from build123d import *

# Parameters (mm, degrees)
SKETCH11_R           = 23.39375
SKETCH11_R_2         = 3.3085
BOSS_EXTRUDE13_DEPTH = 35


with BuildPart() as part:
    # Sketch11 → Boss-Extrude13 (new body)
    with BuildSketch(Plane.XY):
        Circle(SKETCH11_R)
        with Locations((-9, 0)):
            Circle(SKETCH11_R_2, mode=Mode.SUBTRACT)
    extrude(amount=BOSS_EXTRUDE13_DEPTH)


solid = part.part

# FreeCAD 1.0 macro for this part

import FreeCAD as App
import Part
import Sketcher

V = App.Vector

doc = App.newDocument("Part")
params = doc.addObject("Spreadsheet::Sheet", "Params")
for row, (alias, value) in enumerate([
    ("pad1_length", "35 mm"),
], start=1):
    params.set(f"A{row}", alias)
    params.set(f"B{row}", "=" + value)
    params.setAlias(f"B{row}", alias)

body = doc.addObject("PartDesign::Body", "Body")

sketch1 = body.newObject("Sketcher::SketchObject", "Sketch")
sketch1.AttachmentSupport = (doc.getObject("XY_Plane"), [""])
sketch1.MapMode = "FlatFace"
sketch1.addGeometry([
    Part.Circle(V(0, 0, 0), V(0, 0, 1), 23.4),
    Part.Circle(V(-9, 0, 0), V(0, 0, 1), 3.3),
], False)
sketch1.addConstraint([
    Sketcher.Constraint("Coincident", 0, 3, -1, 1),
    Sketcher.Constraint("PointOnObject", 1, 3, -1),
    Sketcher.Constraint("Diameter", 1, 6.617),
    Sketcher.Constraint("DistanceX", 1, 3, -1, 1, 9.0),
    Sketcher.Constraint("Diameter", 0, 46.7875),
])
pad1 = body.newObject("PartDesign::Pad", "Pad")
pad1.Profile = sketch1
pad1.setExpression("Length", "Params.pad1_length")

doc.recompute()
